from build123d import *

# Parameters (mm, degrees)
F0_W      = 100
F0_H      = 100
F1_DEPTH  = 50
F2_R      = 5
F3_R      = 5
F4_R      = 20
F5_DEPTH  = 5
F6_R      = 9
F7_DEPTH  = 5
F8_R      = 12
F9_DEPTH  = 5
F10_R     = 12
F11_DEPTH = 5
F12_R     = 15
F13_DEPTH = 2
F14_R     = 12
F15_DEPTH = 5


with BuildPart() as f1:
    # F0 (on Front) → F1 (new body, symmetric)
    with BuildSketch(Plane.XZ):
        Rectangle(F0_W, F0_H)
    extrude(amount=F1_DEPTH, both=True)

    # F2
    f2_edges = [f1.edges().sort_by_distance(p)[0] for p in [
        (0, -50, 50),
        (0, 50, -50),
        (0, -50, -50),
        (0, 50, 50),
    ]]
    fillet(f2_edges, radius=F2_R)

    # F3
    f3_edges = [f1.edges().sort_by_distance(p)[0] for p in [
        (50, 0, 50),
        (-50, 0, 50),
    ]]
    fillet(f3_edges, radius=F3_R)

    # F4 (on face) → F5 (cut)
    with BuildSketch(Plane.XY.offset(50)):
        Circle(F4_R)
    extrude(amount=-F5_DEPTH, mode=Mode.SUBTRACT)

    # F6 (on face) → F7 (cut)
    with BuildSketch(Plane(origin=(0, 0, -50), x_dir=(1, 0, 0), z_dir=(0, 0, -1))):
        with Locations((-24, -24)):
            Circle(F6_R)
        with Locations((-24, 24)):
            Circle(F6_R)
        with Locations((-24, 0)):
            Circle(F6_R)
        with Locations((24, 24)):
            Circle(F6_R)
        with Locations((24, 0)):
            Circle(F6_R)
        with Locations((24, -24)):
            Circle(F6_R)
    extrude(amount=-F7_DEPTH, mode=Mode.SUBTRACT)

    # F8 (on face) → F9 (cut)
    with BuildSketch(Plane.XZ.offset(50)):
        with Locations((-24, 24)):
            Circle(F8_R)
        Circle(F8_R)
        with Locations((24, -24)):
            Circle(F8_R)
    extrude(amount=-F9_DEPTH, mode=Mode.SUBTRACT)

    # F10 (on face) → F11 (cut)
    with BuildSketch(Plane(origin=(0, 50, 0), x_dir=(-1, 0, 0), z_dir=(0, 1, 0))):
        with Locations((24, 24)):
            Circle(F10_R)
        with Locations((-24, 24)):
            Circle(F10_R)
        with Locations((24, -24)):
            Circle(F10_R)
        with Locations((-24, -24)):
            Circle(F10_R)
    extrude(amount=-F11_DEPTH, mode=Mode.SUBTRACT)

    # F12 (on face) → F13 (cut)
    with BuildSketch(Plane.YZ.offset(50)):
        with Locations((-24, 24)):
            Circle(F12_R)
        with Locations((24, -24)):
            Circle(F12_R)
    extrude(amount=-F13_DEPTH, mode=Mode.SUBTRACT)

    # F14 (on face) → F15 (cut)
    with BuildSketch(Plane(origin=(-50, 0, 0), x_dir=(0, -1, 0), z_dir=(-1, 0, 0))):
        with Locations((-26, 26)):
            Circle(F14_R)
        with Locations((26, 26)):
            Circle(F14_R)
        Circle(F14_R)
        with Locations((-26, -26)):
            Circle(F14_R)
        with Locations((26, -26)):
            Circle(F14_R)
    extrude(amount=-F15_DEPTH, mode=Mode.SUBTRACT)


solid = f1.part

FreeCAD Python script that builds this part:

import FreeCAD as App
import Part
import Sketcher


def edges_at(feature, points):
    """Names of the edges that pass closest to the given points."""
    edges = feature.Shape.Edges
    near = lambda p: min(range(len(edges)), key=lambda i: edges[i].distToShape(Part.Vertex(*p))[0])
    return sorted({f"Edge{near(p) + 1}" for p in points})


def add_polygon(sketch, points):
    """Adds a closed chain of lines whose ends are joined by coincident constraints."""
    first, n = sketch.GeometryCount, len(points)
    for a, b in zip(points, points[1:] + points[:1]):
        sketch.addGeometry(Part.LineSegment(App.Vector(*a, 0), App.Vector(*b, 0)), False)
    for i in range(n):
        sketch.addConstraint(Sketcher.Constraint("Coincident", first + i, 2, first + (i + 1) % n, 1))

doc = App.newDocument("Part")
body = doc.addObject("PartDesign::Body", "Body")

# Sketch on XZ plane
sketch1 = body.newObject("Sketcher::SketchObject", "Sketch")
sketch1.AttachmentSupport = (doc.getObject("XZ_Plane"), [""])
sketch1.MapMode = "FlatFace"
add_polygon(sketch1, [(-50, 50), (-50, -50), (50, -50), (50, 50)])  # lines 0-3
sketch1.addConstraint([
    Sketcher.Constraint("Vertical", 0),
    Sketcher.Constraint("Horizontal", 1),
    Sketcher.Constraint("Vertical", 2),
    Sketcher.Constraint("Horizontal", 3),
    Sketcher.Constraint("Symmetric", 0, 2, 2, 2, -1, 1),
    Sketcher.Constraint("Equal", 3, 0),
    Sketcher.Constraint("DistanceX", 1, 1, 1, 2, 100.0),
])
pad1 = body.newObject("PartDesign::Pad", "Pad")
pad1.Profile = sketch1
pad1.Length = 100
pad1.Midplane = True
doc.recompute()

fillet = body.newObject("PartDesign::Fillet", "Fillet")
fillet.Base = (pad1, edges_at(pad1, [
    (0, -50, 50),
    (0, 50, -50),
    (0, -50, -50),
    (0, 50, 50),
]))
fillet.Radius = 5
doc.recompute()

fillet2 = body.newObject("PartDesign::Fillet", "Fillet001")
fillet2.Base = (fillet, edges_at(fillet, [(50, 0, 50), (-50, 0, 50)]))
fillet2.Radius = 5

# Sketch on XY plane
sketch2 = body.newObject("Sketcher::SketchObject", "Sketch001")
sketch2.AttachmentSupport = (doc.getObject("XY_Plane"), [""])
sketch2.MapMode = "FlatFace"
sketch2.AttachmentOffset = App.Placement(App.Vector(0, 0, 50), App.Rotation())
sketch2.addGeometry(Part.Circle(App.Vector(0, 0, 0), App.Vector(0, 0, 1), 20), False)
sketch2.addConstraint([
    Sketcher.Constraint("Coincident", 0, 3, -1, 1),
    Sketcher.Constraint("Diameter", 0, 40.0),
])
pocket1 = body.newObject("PartDesign::Pocket", "Pocket")
pocket1.Profile = sketch2
pocket1.Length = 5

# Sketch on XY plane
sketch3 = body.newObject("Sketcher::SketchObject", "Sketch002")
sketch3.AttachmentSupport = (doc.getObject("XY_Plane"), [""])
sketch3.MapMode = "FlatFace"
sketch3.AttachmentOffset = App.Placement(App.Vector(0, 0, -50), App.Rotation())
sketch3.addGeometry([
    Part.Circle(App.Vector(-24, 24, 0), App.Vector(0, 0, 1), 9),  # 0
    Part.Circle(App.Vector(-24, -24, 0), App.Vector(0, 0, 1), 9),  # 1
    Part.Circle(App.Vector(-24, 0, 0), App.Vector(0, 0, 1), 9),  # 2
    Part.Circle(App.Vector(24, -24, 0), App.Vector(0, 0, 1), 9),  # 3
    Part.Circle(App.Vector(24, 0, 0), App.Vector(0, 0, 1), 9),  # 4
    Part.Circle(App.Vector(24, 24, 0), App.Vector(0, 0, 1), 9),  # 5
], False)
sketch3.addConstraint([
    Sketcher.Constraint("Equal", 0, 1),
    Sketcher.Constraint("Equal", 1, 2),
    Sketcher.Constraint("Equal", 2, 3),
    Sketcher.Constraint("Equal", 3, 4),
    Sketcher.Constraint("Equal", 4, 5),
    Sketcher.Constraint("Symmetric", 0, 3, 3, 3, -1, 1),
    Sketcher.Constraint("Symmetric", 2, 3, 4, 3, -1, 1),
    Sketcher.Constraint("Symmetric", 1, 3, 5, 3, -1, 1),
    Sketcher.Constraint("Symmetric", 1, 3, 3, 3, -2),
    Sketcher.Constraint("PointOnObject", 2, 3, -1),
    Sketcher.Constraint("Vertical", 1, 3, 2, 3),
    Sketcher.Constraint("Diameter", 0, 18.0),
    Sketcher.Constraint("DistanceX", 0, 3, -1, 1, 24.0),
    Sketcher.Constraint("DistanceY", -1, 1, 0, 3, 24.0),
])
pocket2 = body.newObject("PartDesign::Pocket", "Pocket001")
pocket2.Profile = sketch3
pocket2.Length = 5
pocket2.Reversed = True

# Sketch on XZ plane
sketch4 = body.newObject("Sketcher::SketchObject", "Sketch003")
sketch4.AttachmentSupport = (doc.getObject("XZ_Plane"), [""])
sketch4.MapMode = "FlatFace"
sketch4.AttachmentOffset = App.Placement(App.Vector(0, 0, 50), App.Rotation())
sketch4.addGeometry([
    Part.Circle(App.Vector(-24, 24, 0), App.Vector(0, 0, 1), 12),
    Part.Circle(App.Vector(0, 0, 0), App.Vector(0, 0, 1), 12),
    Part.Circle(App.Vector(24, -24, 0), App.Vector(0, 0, 1), 12),
], False)
sketch4.addConstraint([
    Sketcher.Constraint("Coincident", 1, 3, -1, 1),
    Sketcher.Constraint("Equal", 0, 1),
    Sketcher.Constraint("Equal", 1, 2),
    Sketcher.Constraint("Symmetric", 0, 3, 2, 3, -1, 1),
    Sketcher.Constraint("Diameter", 0, 24.0),
    Sketcher.Constraint("DistanceX", 0, 3, -1, 1, 24.0),
    Sketcher.Constraint("DistanceY", -1, 1, 0, 3, 24.0),
])
pocket3 = body.newObject("PartDesign::Pocket", "Pocket002")
pocket3.Profile = sketch4
pocket3.Length = 5

# Sketch on XZ plane
sketch5 = body.newObject("Sketcher::SketchObject", "Sketch004")
sketch5.AttachmentSupport = (doc.getObject("XZ_Plane"), [""])
sketch5.MapMode = "FlatFace"
sketch5.AttachmentOffset = App.Placement(App.Vector(0, 0, -50), App.Rotation())
sketch5.addGeometry([
    Part.Circle(App.Vector(-24, 24, 0), App.Vector(0, 0, 1), 12),
    Part.Circle(App.Vector(24, 24, 0), App.Vector(0, 0, 1), 12),
    Part.Circle(App.Vector(-24, -24, 0), App.Vector(0, 0, 1), 12),
    Part.Circle(App.Vector(24, -24, 0), App.Vector(0, 0, 1), 12),
], False)
sketch5.addConstraint([
    Sketcher.Constraint("Equal", 0, 1),
    Sketcher.Constraint("Equal", 1, 2),
    Sketcher.Constraint("Equal", 2, 3),
    Sketcher.Constraint("Symmetric", 1, 3, 2, 3, -1, 1),
    Sketcher.Constraint("Symmetric", 0, 3, 3, 3, -1, 1),
    Sketcher.Constraint("Symmetric", 0, 3, 1, 3, -2),
    Sketcher.Constraint("Diameter", 0, 24.0),
    Sketcher.Constraint("DistanceX", 0, 3, -1, 1, 24.0),
    Sketcher.Constraint("DistanceY", -1, 1, 0, 3, 24.0),
])
pocket4 = body.newObject("PartDesign::Pocket", "Pocket003")
pocket4.Profile = sketch5
pocket4.Length = 5
pocket4.Reversed = True

# Sketch on YZ plane
sketch6 = body.newObject("Sketcher::SketchObject", "Sketch005")
sketch6.AttachmentSupport = (doc.getObject("YZ_Plane"), [""])
sketch6.MapMode = "FlatFace"
sketch6.AttachmentOffset = App.Placement(App.Vector(0, 0, 50), App.Rotation())
sketch6.addGeometry([
    Part.Circle(App.Vector(-24, 24, 0), App.Vector(0, 0, 1), 15),
    Part.Circle(App.Vector(24, -24, 0), App.Vector(0, 0, 1), 15),
], False)
sketch6.addConstraint([
    Sketcher.Constraint("Equal", 0, 1),
    Sketcher.Constraint("Symmetric", 0, 3, 1, 3, -1, 1),
    Sketcher.Constraint("Diameter", 0, 30.0),
    Sketcher.Constraint("DistanceX", 0, 3, -1, 1, 24.0),
    Sketcher.Constraint("DistanceY", -1, 1, 0, 3, 24.0),
])
pocket5 = body.newObject("PartDesign::Pocket", "Pocket004")
pocket5.Profile = sketch6
pocket5.Length = 2

# Sketch on YZ plane
sketch7 = body.newObject("Sketcher::SketchObject", "Sketch006")
sketch7.AttachmentSupport = (doc.getObject("YZ_Plane"), [""])
sketch7.MapMode = "FlatFace"
sketch7.AttachmentOffset = App.Placement(App.Vector(0, 0, -50), App.Rotation())
sketch7.addGeometry([
    Part.Circle(App.Vector(26, 26, 0), App.Vector(0, 0, 1), 12),  # 0
    Part.Circle(App.Vector(-26, 26, 0), App.Vector(0, 0, 1), 12),  # 1
    Part.Circle(App.Vector(0, 0, 0), App.Vector(0, 0, 1), 12),  # 2
    Part.Circle(App.Vector(26, -26, 0), App.Vector(0, 0, 1), 12),  # 3
    Part.Circle(App.Vector(-26, -26, 0), App.Vector(0, 0, 1), 12),  # 4
], False)
sketch7.addConstraint([
    Sketcher.Constraint("Coincident", 2, 3, -1, 1),
    Sketcher.Constraint("Equal", 0, 1),
    Sketcher.Constraint("Equal", 1, 2),
    Sketcher.Constraint("Equal", 2, 3),
    Sketcher.Constraint("Equal", 3, 4),
    Sketcher.Constraint("Symmetric", 1, 3, 3, 3, -1, 1),
    Sketcher.Constraint("Symmetric", 0, 3, 4, 3, -1, 1),
    Sketcher.Constraint("Symmetric", 0, 3, 1, 3, -2),
    Sketcher.Constraint("Diameter", 0, 24.0),
    Sketcher.Constraint("DistanceX", -1, 1, 0, 3, 26.0),
    Sketcher.Constraint("DistanceY", -1, 1, 0, 3, 26.0),
])
pocket6 = body.newObject("PartDesign::Pocket", "Pocket005")
pocket6.Profile = sketch7
pocket6.Length = 5
pocket6.Reversed = True

doc.recompute()
